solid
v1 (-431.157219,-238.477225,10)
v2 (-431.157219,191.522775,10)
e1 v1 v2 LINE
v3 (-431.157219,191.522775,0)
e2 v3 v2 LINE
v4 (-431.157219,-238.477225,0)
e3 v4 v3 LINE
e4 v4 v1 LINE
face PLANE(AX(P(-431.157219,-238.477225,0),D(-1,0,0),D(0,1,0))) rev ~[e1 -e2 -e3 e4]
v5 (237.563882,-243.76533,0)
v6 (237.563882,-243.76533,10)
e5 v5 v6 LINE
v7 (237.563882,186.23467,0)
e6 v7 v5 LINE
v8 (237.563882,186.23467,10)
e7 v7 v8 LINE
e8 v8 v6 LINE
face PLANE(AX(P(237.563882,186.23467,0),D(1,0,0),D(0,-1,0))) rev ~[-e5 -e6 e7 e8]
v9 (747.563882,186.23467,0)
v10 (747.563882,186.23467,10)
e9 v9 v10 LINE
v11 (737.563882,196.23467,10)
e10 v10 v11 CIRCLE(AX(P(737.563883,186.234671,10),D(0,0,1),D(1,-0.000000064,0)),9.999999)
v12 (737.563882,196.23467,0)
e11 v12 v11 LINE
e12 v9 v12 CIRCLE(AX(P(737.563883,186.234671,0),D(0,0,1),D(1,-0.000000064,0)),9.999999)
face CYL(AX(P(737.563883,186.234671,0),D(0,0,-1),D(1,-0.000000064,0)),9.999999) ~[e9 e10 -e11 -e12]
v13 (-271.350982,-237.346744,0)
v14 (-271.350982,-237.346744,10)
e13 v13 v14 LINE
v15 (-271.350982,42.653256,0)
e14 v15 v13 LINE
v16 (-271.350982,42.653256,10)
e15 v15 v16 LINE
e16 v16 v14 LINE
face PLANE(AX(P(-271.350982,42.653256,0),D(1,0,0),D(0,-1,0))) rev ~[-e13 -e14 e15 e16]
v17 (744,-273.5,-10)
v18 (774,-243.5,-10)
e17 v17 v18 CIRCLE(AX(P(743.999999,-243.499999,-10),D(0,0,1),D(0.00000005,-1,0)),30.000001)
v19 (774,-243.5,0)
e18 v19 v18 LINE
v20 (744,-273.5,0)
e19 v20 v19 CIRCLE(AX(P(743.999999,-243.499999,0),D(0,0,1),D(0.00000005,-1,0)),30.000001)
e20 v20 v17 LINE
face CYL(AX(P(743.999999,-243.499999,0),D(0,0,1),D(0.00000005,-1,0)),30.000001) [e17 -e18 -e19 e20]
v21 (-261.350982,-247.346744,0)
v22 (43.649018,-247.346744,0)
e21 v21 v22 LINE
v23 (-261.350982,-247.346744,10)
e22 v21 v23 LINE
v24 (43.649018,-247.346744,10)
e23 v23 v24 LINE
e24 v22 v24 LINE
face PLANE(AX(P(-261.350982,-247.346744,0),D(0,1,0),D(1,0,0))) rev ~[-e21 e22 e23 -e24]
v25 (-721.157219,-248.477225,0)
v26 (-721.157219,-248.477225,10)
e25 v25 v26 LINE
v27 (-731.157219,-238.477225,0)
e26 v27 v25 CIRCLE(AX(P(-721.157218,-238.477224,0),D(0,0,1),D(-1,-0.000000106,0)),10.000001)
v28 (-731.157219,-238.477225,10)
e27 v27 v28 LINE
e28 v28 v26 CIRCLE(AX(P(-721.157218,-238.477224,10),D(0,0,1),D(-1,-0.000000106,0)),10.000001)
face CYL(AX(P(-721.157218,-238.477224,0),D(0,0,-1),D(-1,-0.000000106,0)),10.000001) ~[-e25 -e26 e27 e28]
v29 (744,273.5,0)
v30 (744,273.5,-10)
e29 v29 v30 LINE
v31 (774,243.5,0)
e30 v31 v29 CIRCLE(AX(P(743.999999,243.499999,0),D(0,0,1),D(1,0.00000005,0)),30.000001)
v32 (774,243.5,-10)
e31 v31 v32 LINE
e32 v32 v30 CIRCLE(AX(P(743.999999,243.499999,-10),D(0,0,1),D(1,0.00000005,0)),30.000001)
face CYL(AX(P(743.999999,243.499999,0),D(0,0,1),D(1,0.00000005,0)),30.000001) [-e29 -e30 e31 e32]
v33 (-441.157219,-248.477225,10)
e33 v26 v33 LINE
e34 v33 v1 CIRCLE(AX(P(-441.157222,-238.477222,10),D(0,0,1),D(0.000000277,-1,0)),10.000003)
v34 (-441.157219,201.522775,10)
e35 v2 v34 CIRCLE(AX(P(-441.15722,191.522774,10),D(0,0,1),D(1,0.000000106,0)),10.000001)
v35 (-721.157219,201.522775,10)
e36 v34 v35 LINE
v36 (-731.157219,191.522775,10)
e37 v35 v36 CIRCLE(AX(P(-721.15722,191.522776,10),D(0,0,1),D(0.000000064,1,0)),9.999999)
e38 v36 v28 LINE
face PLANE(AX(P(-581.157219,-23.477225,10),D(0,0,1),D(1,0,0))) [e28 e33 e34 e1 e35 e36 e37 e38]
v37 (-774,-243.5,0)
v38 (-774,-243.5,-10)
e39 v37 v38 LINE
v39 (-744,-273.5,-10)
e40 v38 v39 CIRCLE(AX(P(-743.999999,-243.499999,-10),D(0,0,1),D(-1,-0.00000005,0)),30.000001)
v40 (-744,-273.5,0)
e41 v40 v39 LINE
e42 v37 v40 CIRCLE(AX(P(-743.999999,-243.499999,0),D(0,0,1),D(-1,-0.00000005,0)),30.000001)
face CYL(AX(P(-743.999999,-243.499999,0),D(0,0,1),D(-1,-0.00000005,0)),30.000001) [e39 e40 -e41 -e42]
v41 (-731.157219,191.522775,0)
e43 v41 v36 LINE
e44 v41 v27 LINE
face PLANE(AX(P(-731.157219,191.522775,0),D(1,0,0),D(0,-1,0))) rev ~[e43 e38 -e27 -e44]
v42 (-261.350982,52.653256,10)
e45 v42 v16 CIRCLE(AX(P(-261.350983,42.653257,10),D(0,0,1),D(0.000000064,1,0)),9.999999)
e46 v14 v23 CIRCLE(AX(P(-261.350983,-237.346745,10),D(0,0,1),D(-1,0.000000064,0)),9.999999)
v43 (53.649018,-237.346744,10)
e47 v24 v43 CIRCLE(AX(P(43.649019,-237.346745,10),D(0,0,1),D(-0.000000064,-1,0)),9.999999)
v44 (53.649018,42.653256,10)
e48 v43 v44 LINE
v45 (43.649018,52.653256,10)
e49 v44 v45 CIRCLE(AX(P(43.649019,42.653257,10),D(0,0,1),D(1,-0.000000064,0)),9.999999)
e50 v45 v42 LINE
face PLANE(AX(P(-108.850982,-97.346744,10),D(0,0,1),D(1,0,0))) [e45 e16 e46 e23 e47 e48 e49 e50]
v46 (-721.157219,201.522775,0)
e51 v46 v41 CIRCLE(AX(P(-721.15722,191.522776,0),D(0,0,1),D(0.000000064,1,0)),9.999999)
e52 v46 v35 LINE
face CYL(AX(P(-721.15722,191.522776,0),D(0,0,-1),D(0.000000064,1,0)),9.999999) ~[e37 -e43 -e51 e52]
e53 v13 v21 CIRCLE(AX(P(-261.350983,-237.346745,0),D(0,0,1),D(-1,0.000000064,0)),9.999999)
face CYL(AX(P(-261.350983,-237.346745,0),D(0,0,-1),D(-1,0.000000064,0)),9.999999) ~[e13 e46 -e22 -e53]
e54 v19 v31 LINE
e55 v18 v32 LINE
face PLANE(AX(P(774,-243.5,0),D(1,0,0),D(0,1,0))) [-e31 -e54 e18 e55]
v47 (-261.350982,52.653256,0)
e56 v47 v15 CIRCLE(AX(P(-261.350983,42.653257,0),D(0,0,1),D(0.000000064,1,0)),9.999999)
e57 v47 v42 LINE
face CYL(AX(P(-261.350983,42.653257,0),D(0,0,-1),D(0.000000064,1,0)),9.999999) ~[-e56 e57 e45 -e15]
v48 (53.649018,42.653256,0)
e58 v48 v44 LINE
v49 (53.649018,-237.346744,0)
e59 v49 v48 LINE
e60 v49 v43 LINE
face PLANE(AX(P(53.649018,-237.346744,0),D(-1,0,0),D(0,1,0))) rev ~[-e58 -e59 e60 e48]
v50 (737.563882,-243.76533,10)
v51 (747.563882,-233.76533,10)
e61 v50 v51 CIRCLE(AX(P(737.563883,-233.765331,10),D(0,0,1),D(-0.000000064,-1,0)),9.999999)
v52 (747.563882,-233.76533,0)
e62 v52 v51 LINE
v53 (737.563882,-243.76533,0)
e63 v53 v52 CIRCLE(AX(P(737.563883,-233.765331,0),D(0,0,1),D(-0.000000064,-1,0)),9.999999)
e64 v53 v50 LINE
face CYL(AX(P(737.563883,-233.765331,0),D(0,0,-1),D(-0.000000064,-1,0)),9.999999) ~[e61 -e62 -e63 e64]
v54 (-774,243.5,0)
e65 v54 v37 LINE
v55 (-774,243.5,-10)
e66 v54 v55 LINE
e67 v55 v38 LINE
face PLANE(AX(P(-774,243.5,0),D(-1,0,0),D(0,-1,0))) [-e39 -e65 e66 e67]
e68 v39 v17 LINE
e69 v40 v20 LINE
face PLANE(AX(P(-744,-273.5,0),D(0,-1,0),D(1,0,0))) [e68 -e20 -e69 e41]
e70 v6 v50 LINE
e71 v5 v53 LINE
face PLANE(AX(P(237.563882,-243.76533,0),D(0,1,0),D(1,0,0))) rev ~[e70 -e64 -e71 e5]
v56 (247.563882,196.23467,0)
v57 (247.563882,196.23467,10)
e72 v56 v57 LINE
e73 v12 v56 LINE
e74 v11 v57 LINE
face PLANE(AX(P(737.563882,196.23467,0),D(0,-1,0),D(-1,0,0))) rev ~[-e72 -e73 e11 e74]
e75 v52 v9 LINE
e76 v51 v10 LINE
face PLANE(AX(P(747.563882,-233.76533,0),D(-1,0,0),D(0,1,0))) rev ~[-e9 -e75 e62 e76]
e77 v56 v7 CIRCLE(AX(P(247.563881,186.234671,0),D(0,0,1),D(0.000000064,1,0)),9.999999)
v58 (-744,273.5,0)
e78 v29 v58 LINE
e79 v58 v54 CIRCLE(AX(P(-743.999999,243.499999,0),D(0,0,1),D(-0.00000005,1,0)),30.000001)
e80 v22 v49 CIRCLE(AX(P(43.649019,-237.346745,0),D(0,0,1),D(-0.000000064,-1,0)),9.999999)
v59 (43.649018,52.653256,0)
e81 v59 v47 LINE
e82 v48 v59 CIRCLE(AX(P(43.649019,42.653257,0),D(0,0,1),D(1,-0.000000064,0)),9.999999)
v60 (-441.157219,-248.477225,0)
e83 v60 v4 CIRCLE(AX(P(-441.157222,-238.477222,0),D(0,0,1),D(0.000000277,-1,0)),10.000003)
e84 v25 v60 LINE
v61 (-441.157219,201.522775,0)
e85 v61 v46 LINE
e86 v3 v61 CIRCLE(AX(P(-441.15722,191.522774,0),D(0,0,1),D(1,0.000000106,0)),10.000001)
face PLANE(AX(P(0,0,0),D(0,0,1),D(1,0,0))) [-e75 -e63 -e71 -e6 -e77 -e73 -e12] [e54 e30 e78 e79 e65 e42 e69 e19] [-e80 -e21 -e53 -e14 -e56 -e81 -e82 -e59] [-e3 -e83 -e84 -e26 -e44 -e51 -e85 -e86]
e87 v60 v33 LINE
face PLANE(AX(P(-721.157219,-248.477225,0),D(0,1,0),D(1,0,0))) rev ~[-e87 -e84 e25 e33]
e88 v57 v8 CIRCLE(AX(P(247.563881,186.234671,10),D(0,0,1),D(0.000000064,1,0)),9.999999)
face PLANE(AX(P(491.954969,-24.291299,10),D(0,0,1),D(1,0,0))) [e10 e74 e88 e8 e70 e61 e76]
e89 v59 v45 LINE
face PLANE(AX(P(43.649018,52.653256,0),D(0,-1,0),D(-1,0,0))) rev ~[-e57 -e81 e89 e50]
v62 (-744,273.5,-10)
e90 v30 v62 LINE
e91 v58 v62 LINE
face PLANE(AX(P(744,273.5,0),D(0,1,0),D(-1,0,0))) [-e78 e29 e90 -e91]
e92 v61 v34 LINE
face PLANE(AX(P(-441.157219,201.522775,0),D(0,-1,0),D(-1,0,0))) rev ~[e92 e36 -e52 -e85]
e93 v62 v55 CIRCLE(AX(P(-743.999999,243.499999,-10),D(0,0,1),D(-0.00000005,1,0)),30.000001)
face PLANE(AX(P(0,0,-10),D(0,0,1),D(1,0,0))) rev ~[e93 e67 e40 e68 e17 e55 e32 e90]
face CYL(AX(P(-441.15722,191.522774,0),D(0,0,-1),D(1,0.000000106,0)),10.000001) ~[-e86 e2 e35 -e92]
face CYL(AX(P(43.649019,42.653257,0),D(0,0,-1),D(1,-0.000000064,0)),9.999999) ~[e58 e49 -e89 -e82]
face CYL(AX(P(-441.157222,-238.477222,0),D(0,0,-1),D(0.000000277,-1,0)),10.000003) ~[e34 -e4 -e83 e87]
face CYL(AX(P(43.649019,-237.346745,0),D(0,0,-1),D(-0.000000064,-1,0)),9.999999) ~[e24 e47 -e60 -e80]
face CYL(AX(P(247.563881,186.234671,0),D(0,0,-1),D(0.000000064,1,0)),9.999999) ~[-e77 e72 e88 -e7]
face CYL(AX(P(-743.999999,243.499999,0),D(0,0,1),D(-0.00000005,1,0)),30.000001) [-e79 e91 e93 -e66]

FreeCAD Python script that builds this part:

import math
import FreeCAD as App
import Part
import Sketcher

V = App.Vector

doc = App.newDocument("Part")
body = doc.addObject("PartDesign::Body", "Body")

sketch1 = body.newObject("Sketcher::SketchObject", "Sketch")
sketch1.AttachmentSupport = (doc.getObject("XY_Plane"), [""])
sketch1.MapMode = "FlatFace"
sketch1.addGeometry([
    Part.LineSegment(V(744, 273.5, 0), V(-744, 273.5, 0)),
    Part.ArcOfCircle(Part.Circle(V(-743.999999, 243.499999, 0), V(0, 0, 1), 30.000001), math.radians(90.000003), math.radians(179.999997)),
    Part.LineSegment(V(-774, 243.5, 0), V(-774, -243.5, 0)),
    Part.ArcOfCircle(Part.Circle(V(-743.999999, -243.499999, 0), V(0, 0, 1), 30.000001), math.radians(-179.999997), math.radians(-90.000003)),
    Part.LineSegment(V(-744, -273.5, 0), V(744, -273.5, 0)),
    Part.ArcOfCircle(Part.Circle(V(743.999999, -243.499999, 0), V(0, 0, 1), 30.000001), math.radians(-89.999997), math.radians(-0.000003)),
    Part.LineSegment(V(774, -243.5, 0), V(774, 243.5, 0)),
    Part.ArcOfCircle(Part.Circle(V(743.999999, 243.499999, 0), V(0, 0, 1), 30.000001), math.radians(0.000003), math.radians(89.999997)),
], False)
sketch1.addConstraint([
    Sketcher.Constraint("Tangent", 0, 2, 1, 1),
    Sketcher.Constraint("Tangent", 1, 2, 2, 1),
    Sketcher.Constraint("Tangent", 2, 2, 3, 1),
    Sketcher.Constraint("Tangent", 3, 2, 4, 1),
    Sketcher.Constraint("Tangent", 4, 2, 5, 1),
    Sketcher.Constraint("Tangent", 5, 2, 6, 1),
    Sketcher.Constraint("Tangent", 6, 2, 7, 1),
    Sketcher.Constraint("Tangent", 7, 2, 0, 1),
    Sketcher.Constraint("Horizontal", 0),
    Sketcher.Constraint("Vertical", 2),
    Sketcher.Constraint("Horizontal", 4),
    Sketcher.Constraint("Vertical", 6),
    Sketcher.Constraint("Equal", 1, 3),
    Sketcher.Constraint("Equal", 3, 5),
    Sketcher.Constraint("Equal", 5, 7),
    Sketcher.Constraint("Symmetric", 1, 3, 5, 3, -1, 1),
    Sketcher.Constraint("Radius", 1, 30.000001),
    Sketcher.Constraint("DistanceX", 0, 2, 0, 1, 1488.0),
    Sketcher.Constraint("DistanceY", 2, 2, 2, 1, 487.0),
])
pad1 = body.newObject("PartDesign::Pad", "Pad")
pad1.Profile = sketch1
pad1.Length = 10
pad1.Reversed = True

sketch2 = body.newObject("Sketcher::SketchObject", "Sketch001")
sketch2.AttachmentSupport = (doc.getObject("XY_Plane"), [""])
sketch2.MapMode = "FlatFace"
sketch2.addGeometry([
    Part.LineSegment(V(237.563882, 186.23467, 0), V(237.563882, -243.76533, 0)),
    Part.LineSegment(V(237.563882, -243.76533, 0), V(737.563882, -243.76533, 0)),
    Part.ArcOfCircle(Part.Circle(V(737.563883, -233.765331, 0), V(0, 0, 1), 9.999999), math.radians(-90.000004), math.radians(0.000004)),
    Part.LineSegment(V(747.563882, -233.76533, 0), V(747.563882, 186.23467, 0)),
    Part.ArcOfCircle(Part.Circle(V(737.563883, 186.234671, 0), V(0, 0, 1), 9.999999), math.radians(-0.000004), math.radians(90.000004)),
    Part.LineSegment(V(737.563882, 196.23467, 0), V(247.563882, 196.23467, 0)),
    Part.ArcOfCircle(Part.Circle(V(247.563881, 186.234671, 0), V(0, 0, 1), 9.999999), math.radians(89.999996), math.radians(180.000004)),
], False)
sketch2.addConstraint([
    Sketcher.Constraint("Coincident", 0, 2, 1, 1),
    Sketcher.Constraint("Tangent", 1, 2, 2, 1),
    Sketcher.Constraint("Tangent", 2, 2, 3, 1),
    Sketcher.Constraint("Tangent", 3, 2, 4, 1),
    Sketcher.Constraint("Tangent", 4, 2, 5, 1),
    Sketcher.Constraint("Tangent", 5, 2, 6, 1),
    Sketcher.Constraint("Tangent", 6, 2, 0, 1),
    Sketcher.Constraint("Vertical", 0),
    Sketcher.Constraint("Horizontal", 1),
    Sketcher.Constraint("Vertical", 3),
    Sketcher.Constraint("Horizontal", 5),
    Sketcher.Constraint("Equal", 2, 4),
    Sketcher.Constraint("Equal", 4, 6),
    Sketcher.Constraint("Radius", 2, 9.999999),
    Sketcher.Constraint("DistanceX", 1, 1, 1, 2, 500.0),
    Sketcher.Constraint("DistanceY", 0, 2, 0, 1, 430.0),
    Sketcher.Constraint("DistanceY", 2, 3, -1, 1, 233.765331),
    Sketcher.Constraint("DistanceX", -1, 1, 6, 3, 247.563881),
])
pad2 = body.newObject("PartDesign::Pad", "Pad001")
pad2.Profile = sketch2
pad2.Length = 10

sketch3 = body.newObject("Sketcher::SketchObject", "Sketch002")
sketch3.AttachmentSupport = (doc.getObject("XY_Plane"), [""])
sketch3.MapMode = "FlatFace"
sketch3.addGeometry([
    Part.LineSegment(V(-441.157219, 201.522775, 0), V(-721.157219, 201.522775, 0)),
    Part.ArcOfCircle(Part.Circle(V(-721.15722, 191.522776, 0), V(0, 0, 1), 9.999999), math.radians(89.999996), math.radians(180.000004)),
    Part.LineSegment(V(-731.157219, 191.522775, 0), V(-731.157219, -238.477225, 0)),
    Part.ArcOfCircle(Part.Circle(V(-721.157218, -238.477224, 0), V(0, 0, 1), 10.000001), math.radians(-179.999994), math.radians(-90.000006)),
    Part.LineSegment(V(-721.157219, -248.477225, 0), V(-441.157219, -248.477225, 0)),
    Part.ArcOfCircle(Part.Circle(V(-441.157222, -238.477222, 0), V(0, 0, 1), 10.000003), math.radians(-89.999984), math.radians(-0.000016)),
    Part.LineSegment(V(-431.157219, -238.477225, 0), V(-431.157219, 191.522775, 0)),
    Part.ArcOfCircle(Part.Circle(V(-441.15722, 191.522774, 0), V(0, 0, 1), 10.000001), math.radians(0.000006), math.radians(89.999994)),
], False)
sketch3.addConstraint([
    Sketcher.Constraint("Tangent", 0, 2, 1, 1),
    Sketcher.Constraint("Tangent", 1, 2, 2, 1),
    Sketcher.Constraint("Tangent", 2, 2, 3, 1),
    Sketcher.Constraint("Tangent", 3, 2, 4, 1),
    Sketcher.Constraint("Tangent", 4, 2, 5, 1),
    Sketcher.Constraint("Tangent", 5, 2, 6, 1),
    Sketcher.Constraint("Tangent", 6, 2, 7, 1),
    Sketcher.Constraint("Tangent", 7, 2, 0, 1),
    Sketcher.Constraint("Horizontal", 0),
    Sketcher.Constraint("Vertical", 2),
    Sketcher.Constraint("Horizontal", 4),
    Sketcher.Constraint("Vertical", 6),
    Sketcher.Constraint("Equal", 1, 3),
    Sketcher.Constraint("Equal", 3, 5),
    Sketcher.Constraint("Equal", 5, 7),
    Sketcher.Constraint("Radius", 1, 9.999999),
    Sketcher.Constraint("DistanceX", 0, 2, 0, 1, 280.0),
    Sketcher.Constraint("DistanceY", 2, 2, 2, 1, 430.0),
    Sketcher.Constraint("DistanceX", 1, 3, -1, 1, 721.15722),
    Sketcher.Constraint("DistanceY", -1, 1, 1, 3, 191.522776),
])
pad3 = body.newObject("PartDesign::Pad", "Pad002")
pad3.Profile = sketch3
pad3.Length = 10

sketch4 = body.newObject("Sketcher::SketchObject", "Sketch003")
sketch4.AttachmentSupport = (doc.getObject("XY_Plane"), [""])
sketch4.MapMode = "FlatFace"
sketch4.addGeometry([
    Part.LineSegment(V(43.649018, 52.653256, 0), V(-261.350982, 52.653256, 0)),
    Part.ArcOfCircle(Part.Circle(V(-261.350983, 42.653257, 0), V(0, 0, 1), 9.999999), math.radians(89.999996), math.radians(180.000004)),
    Part.LineSegment(V(-271.350982, 42.653256, 0), V(-271.350982, -237.346744, 0)),
    Part.ArcOfCircle(Part.Circle(V(-261.350983, -237.346745, 0), V(0, 0, 1), 9.999999), math.radians(179.999996), math.radians(270.000004)),
    Part.LineSegment(V(-261.350982, -247.346744, 0), V(43.649018, -247.346744, 0)),
    Part.ArcOfCircle(Part.Circle(V(43.649019, -237.346745, 0), V(0, 0, 1), 9.999999), math.radians(-90.000004), math.radians(0.000004)),
    Part.LineSegment(V(53.649018, -237.346744, 0), V(53.649018, 42.653256, 0)),
    Part.ArcOfCircle(Part.Circle(V(43.649019, 42.653257, 0), V(0, 0, 1), 9.999999), math.radians(-0.000004), math.radians(90.000004)),
], False)
sketch4.addConstraint([
    Sketcher.Constraint("Tangent", 0, 2, 1, 1),
    Sketcher.Constraint("Tangent", 1, 2, 2, 1),
    Sketcher.Constraint("Tangent", 2, 2, 3, 1),
    Sketcher.Constraint("Tangent", 3, 2, 4, 1),
    Sketcher.Constraint("Tangent", 4, 2, 5, 1),
    Sketcher.Constraint("Tangent", 5, 2, 6, 1),
    Sketcher.Constraint("Tangent", 6, 2, 7, 1),
    Sketcher.Constraint("Tangent", 7, 2, 0, 1),
    Sketcher.Constraint("Horizontal", 0),
    Sketcher.Constraint("Vertical", 2),
    Sketcher.Constraint("Horizontal", 4),
    Sketcher.Constraint("Vertical", 6),
    Sketcher.Constraint("Equal", 1, 3),
    Sketcher.Constraint("Equal", 3, 5),
    Sketcher.Constraint("Equal", 5, 7),
    Sketcher.Constraint("Radius", 1, 9.999999),
    Sketcher.Constraint("DistanceX", 0, 2, 0, 1, 305.0),
    Sketcher.Constraint("DistanceY", 2, 2, 2, 1, 280.0),
    Sketcher.Constraint("DistanceX", -1, 1, 5, 3, 43.649019),
    Sketcher.Constraint("DistanceY", -1, 1, 1, 3, 42.653257),
])
pad4 = body.newObject("PartDesign::Pad", "Pad003")
pad4.Profile = sketch4
pad4.Length = 10

doc.recompute()
